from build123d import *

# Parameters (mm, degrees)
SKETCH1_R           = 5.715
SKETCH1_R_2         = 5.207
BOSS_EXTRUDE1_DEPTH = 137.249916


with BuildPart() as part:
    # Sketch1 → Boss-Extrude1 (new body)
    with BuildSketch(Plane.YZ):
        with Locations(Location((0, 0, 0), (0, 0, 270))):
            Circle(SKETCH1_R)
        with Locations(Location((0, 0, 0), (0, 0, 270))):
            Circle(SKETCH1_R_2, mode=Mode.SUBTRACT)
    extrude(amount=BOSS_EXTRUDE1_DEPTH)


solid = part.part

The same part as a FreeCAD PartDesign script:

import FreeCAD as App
import Part
import Sketcher

V = App.Vector
Q = App.Units.Quantity

doc = App.newDocument("Part")
body = doc.addObject("PartDesign::Body", "Body")

# Sketch on YZ plane
sketch1 = body.newObject("Sketcher::SketchObject", "Sketch")
sketch1.AttachmentSupport = (doc.getObject("YZ_Plane"), [""])
sketch1.MapMode = "FlatFace"
sketch1.addGeometry([
    Part.Circle(V(0, 0, 0), V(0, 0, 1), 5.715),
    Part.Circle(V(0, 0, 0), V(0, 0, 1), 5.207),
], False)
sketch1.addConstraint([
    Sketcher.Constraint("Coincident", 0, 3, -1, 1),
    Sketcher.Constraint("Coincident", 1, 3, -1, 1),
    Sketcher.Constraint("Diameter", 0, Q("0.45 in")),
    Sketcher.Constraint("Diameter", 1, Q("0.41 in")),
])
pad1 = body.newObject("PartDesign::Pad", "Pad")
pad1.Profile = sketch1
pad1.Length = 137.249916

doc.recompute()
